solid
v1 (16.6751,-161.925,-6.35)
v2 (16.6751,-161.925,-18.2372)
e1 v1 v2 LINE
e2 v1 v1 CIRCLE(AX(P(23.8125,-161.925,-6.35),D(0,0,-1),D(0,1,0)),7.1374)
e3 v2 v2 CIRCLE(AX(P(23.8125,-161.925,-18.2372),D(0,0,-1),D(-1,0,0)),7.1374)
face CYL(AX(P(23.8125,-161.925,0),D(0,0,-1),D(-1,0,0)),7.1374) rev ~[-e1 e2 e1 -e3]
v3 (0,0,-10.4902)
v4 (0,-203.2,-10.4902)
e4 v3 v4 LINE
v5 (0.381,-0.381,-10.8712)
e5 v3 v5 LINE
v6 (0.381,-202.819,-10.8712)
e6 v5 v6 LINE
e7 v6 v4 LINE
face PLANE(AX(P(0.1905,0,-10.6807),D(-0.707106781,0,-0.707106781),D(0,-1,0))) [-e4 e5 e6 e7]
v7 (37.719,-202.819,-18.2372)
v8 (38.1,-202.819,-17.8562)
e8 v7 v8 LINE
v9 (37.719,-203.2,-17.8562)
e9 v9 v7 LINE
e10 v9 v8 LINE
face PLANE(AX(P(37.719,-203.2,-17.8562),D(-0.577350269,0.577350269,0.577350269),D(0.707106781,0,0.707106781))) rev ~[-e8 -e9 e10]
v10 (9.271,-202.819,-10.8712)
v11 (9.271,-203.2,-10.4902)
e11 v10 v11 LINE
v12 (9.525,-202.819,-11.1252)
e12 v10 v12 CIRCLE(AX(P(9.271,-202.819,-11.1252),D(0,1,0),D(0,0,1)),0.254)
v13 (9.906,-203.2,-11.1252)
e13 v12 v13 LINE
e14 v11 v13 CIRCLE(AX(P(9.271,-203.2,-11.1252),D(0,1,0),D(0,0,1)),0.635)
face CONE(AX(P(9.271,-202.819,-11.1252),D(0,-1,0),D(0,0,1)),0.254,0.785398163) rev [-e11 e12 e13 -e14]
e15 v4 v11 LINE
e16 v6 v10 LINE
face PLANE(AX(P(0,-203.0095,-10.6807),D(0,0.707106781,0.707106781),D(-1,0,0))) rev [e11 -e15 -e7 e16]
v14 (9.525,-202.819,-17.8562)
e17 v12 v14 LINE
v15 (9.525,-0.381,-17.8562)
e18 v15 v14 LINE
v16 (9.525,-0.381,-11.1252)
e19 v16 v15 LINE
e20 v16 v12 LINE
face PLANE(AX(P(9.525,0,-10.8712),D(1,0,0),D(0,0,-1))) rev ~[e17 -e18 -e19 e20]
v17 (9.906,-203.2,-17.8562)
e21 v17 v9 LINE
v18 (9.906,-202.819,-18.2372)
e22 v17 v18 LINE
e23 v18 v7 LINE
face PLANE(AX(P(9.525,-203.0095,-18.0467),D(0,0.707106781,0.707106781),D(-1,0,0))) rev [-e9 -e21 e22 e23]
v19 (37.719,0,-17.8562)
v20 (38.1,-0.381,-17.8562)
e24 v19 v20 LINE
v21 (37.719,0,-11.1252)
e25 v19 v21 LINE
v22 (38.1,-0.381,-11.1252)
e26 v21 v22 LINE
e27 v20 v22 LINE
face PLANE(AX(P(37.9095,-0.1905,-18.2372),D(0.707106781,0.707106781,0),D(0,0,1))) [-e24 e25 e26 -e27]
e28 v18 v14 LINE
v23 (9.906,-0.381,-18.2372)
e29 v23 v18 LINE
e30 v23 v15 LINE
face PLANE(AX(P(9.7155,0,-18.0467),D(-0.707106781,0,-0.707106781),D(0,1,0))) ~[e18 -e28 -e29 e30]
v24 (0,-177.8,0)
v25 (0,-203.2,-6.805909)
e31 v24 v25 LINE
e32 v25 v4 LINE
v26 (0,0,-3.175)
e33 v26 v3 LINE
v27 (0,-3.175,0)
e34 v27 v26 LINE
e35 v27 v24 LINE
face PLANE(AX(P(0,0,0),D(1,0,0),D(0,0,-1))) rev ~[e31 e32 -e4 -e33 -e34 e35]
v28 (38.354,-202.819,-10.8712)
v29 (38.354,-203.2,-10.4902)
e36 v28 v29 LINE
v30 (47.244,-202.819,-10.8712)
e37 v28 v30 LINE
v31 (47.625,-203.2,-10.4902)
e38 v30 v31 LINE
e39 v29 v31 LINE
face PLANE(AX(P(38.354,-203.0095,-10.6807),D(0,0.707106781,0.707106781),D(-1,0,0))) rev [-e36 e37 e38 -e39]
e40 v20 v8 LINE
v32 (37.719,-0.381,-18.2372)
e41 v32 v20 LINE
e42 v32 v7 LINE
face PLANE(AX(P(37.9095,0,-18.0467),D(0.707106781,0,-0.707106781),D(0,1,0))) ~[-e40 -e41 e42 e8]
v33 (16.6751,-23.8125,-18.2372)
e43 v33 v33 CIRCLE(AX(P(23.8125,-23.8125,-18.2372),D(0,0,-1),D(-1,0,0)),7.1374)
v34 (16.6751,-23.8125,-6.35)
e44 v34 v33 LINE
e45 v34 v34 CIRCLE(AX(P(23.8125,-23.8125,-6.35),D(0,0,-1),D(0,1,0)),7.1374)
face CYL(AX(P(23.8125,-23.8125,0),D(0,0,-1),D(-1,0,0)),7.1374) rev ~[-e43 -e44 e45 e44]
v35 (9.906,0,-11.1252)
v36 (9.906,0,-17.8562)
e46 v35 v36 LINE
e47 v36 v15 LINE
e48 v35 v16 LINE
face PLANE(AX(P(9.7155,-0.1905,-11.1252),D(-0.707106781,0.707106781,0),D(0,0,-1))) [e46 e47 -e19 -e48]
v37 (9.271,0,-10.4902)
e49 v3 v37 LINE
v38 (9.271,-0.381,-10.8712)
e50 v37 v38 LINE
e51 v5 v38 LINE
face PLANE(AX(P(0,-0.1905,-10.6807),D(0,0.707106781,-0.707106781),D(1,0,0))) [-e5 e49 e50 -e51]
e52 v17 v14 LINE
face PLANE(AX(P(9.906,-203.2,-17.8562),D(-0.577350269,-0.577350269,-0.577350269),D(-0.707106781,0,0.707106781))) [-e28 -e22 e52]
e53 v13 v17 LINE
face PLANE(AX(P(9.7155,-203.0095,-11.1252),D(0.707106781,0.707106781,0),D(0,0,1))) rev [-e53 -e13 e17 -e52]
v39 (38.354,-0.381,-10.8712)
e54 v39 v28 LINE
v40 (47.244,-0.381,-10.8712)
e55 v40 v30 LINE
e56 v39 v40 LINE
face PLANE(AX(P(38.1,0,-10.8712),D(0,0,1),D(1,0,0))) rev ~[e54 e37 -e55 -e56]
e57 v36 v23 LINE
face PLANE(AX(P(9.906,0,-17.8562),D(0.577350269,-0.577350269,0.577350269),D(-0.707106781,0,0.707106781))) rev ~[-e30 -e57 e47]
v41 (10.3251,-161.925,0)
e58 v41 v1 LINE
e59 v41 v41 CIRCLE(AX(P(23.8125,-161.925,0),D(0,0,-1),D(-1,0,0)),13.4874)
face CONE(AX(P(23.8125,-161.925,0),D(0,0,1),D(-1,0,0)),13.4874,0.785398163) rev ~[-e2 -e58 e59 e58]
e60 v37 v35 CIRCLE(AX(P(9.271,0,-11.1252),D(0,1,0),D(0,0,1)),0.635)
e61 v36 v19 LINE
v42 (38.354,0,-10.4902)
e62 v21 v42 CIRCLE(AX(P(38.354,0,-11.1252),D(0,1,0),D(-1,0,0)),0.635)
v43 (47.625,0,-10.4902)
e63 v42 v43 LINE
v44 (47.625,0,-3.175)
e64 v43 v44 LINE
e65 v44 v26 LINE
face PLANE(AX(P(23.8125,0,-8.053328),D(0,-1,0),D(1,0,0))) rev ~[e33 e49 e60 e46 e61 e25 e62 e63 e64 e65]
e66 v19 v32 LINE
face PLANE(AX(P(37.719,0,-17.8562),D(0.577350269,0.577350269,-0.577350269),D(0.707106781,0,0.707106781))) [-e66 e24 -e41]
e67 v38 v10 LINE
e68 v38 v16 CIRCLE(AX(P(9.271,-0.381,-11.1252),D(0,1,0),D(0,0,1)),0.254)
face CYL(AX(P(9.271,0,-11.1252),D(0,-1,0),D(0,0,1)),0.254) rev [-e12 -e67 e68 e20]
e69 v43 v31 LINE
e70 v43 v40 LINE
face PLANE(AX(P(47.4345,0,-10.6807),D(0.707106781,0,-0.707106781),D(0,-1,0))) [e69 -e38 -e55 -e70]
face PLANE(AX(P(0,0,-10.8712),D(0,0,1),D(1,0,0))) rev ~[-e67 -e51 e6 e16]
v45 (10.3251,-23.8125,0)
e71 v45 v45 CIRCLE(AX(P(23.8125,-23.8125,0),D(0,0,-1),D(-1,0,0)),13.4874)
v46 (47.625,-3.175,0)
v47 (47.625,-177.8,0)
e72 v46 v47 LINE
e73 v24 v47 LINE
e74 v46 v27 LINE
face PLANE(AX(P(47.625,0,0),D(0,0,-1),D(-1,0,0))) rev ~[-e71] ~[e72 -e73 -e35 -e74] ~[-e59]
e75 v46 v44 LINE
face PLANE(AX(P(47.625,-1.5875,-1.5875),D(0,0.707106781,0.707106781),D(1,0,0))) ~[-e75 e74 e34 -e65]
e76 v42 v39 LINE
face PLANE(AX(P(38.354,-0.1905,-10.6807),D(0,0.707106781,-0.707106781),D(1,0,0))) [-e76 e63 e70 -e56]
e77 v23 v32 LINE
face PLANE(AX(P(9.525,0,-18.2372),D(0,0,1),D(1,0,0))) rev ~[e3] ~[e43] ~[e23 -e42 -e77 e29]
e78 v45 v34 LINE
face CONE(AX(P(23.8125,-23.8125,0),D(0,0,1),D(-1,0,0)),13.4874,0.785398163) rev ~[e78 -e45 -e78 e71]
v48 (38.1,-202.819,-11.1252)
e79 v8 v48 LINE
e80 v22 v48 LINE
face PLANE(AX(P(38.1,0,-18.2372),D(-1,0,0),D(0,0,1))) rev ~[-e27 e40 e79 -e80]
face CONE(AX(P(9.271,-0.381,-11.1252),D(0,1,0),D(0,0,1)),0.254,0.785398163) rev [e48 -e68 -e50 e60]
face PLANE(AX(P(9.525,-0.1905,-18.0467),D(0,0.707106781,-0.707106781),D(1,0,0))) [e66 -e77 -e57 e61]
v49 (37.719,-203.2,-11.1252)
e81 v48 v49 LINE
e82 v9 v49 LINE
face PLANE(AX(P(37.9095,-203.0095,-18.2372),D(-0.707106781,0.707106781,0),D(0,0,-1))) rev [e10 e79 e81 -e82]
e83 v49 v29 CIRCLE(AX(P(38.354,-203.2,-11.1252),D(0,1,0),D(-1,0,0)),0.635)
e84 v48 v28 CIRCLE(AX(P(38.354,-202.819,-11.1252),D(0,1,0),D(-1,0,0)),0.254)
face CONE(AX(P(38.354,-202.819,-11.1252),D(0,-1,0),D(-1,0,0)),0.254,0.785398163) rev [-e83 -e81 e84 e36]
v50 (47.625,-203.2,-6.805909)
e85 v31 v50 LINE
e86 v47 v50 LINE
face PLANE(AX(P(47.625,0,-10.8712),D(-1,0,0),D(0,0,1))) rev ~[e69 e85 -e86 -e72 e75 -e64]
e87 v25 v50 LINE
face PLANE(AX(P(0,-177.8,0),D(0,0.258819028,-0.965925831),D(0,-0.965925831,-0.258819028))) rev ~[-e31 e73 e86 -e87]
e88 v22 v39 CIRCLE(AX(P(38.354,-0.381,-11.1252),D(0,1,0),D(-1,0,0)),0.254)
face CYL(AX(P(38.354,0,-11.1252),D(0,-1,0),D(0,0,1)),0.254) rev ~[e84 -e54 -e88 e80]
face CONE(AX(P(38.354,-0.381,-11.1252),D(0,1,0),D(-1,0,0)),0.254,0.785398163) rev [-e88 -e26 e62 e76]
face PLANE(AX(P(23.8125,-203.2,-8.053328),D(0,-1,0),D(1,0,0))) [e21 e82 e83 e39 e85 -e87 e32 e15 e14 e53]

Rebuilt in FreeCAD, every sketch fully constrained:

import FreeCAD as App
import Part
import Sketcher
from FreeCAD import Vector
Q = App.Units.Quantity


def edges_at(feature, points):
    """Names of the edges that pass closest to the given points."""
    edges = feature.Shape.Edges
    near = lambda p: min(range(len(edges)), key=lambda i: edges[i].distToShape(Part.Vertex(*p))[0])
    return sorted({f"Edge{near(p) + 1}" for p in points})

doc = App.newDocument("Part")
body = doc.addObject("PartDesign::Body", "Body")

# Sketch on XZ plane
sketch1 = body.newObject("Sketcher::SketchObject", "Sketch")
sketch1.AttachmentSupport = (doc.getObject("XZ_Plane"), [""])
sketch1.MapMode = "FlatFace"
sketch1.addGeometry(Part.LineSegment(Vector(47.625, 0, 0), Vector(0, 0, 0)), False)
sketch1.addGeometry(Part.LineSegment(Vector(0, 0, 0), Vector(0, -10.8712, 0)), False)
sketch1.addGeometry(Part.LineSegment(Vector(0, -10.8712, 0), Vector(9.525, -10.8712, 0)), False)
sketch1.addGeometry(Part.LineSegment(Vector(9.525, -10.8712, 0), Vector(9.525, -18.2372, 0)), False)
sketch1.addGeometry(Part.LineSegment(Vector(9.525, -18.2372, 0), Vector(38.1, -18.2372, 0)), False)
sketch1.addGeometry(Part.LineSegment(Vector(38.1, -18.2372, 0), Vector(38.1, -10.8712, 0)), False)
sketch1.addGeometry(Part.LineSegment(Vector(38.1, -10.8712, 0), Vector(47.625, -10.8712, 0)), False)
sketch1.addGeometry(Part.LineSegment(Vector(47.625, -10.8712, 0), Vector(47.625, 0, 0)), False)
sketch1.addConstraint(Sketcher.Constraint("Coincident", 0, 2, 1, 1))
sketch1.addConstraint(Sketcher.Constraint("Coincident", 1, 2, 2, 1))
sketch1.addConstraint(Sketcher.Constraint("Coincident", 2, 2, 3, 1))
sketch1.addConstraint(Sketcher.Constraint("Coincident", 3, 2, 4, 1))
sketch1.addConstraint(Sketcher.Constraint("Coincident", 4, 2, 5, 1))
sketch1.addConstraint(Sketcher.Constraint("Coincident", 5, 2, 6, 1))
sketch1.addConstraint(Sketcher.Constraint("Coincident", 6, 2, 7, 1))
sketch1.addConstraint(Sketcher.Constraint("Coincident", 7, 2, 0, 1))
sketch1.addConstraint(Sketcher.Constraint("Horizontal", 0))
sketch1.addConstraint(Sketcher.Constraint("Vertical", 1))
sketch1.addConstraint(Sketcher.Constraint("Horizontal", 2))
sketch1.addConstraint(Sketcher.Constraint("Vertical", 3))
sketch1.addConstraint(Sketcher.Constraint("Horizontal", 4))
sketch1.addConstraint(Sketcher.Constraint("Vertical", 5))
sketch1.addConstraint(Sketcher.Constraint("Horizontal", 6))
sketch1.addConstraint(Sketcher.Constraint("Vertical", 7))
sketch1.addConstraint(Sketcher.Constraint("Coincident", 0, 2, -1, 1))
sketch1.addConstraint(Sketcher.Constraint("Horizontal", 2, 2, 5, 2))
sketch1.addConstraint(Sketcher.Constraint("Equal", 2, 6))
sketch1.addConstraint(Sketcher.Constraint("DistanceY", 3, 2, 3, 1, Q("0.29 in")))
sketch1.addConstraint(Sketcher.Constraint("DistanceX", -1, 1, 4, 2, Q("1.5 in")))
sketch1.addConstraint(Sketcher.Constraint("DistanceX", 0, 2, 0, 1, Q("1.875 in")))
sketch1.addConstraint(Sketcher.Constraint("DistanceY", 1, 2, 1, 1, Q("0.428 in")))
pad1 = body.newObject("PartDesign::Pad", "Pad")
pad1.Profile = sketch1
pad1.Length = Q("8 in")

# Sketch on YZ plane
sketch2 = body.newObject("Sketcher::SketchObject", "Sketch001")
sketch2.AttachmentSupport = (doc.getObject("YZ_Plane"), [""])
sketch2.MapMode = "FlatFace"
sketch2.addGeometry(Part.LineSegment(Vector(-203.2, -6.805909, 0), Vector(-203.2, 0, 0)), False)
sketch2.addGeometry(Part.LineSegment(Vector(-203.2, 0, 0), Vector(-177.8, 0, 0)), False)
sketch2.addGeometry(Part.LineSegment(Vector(-177.8, 0, 0), Vector(-203.2, -6.805909, 0)), False)
sketch2.addConstraint(Sketcher.Constraint("Coincident", 0, 2, 1, 1))
sketch2.addConstraint(Sketcher.Constraint("Coincident", 1, 2, 2, 1))
sketch2.addConstraint(Sketcher.Constraint("Coincident", 2, 2, 0, 1))
sketch2.addConstraint(Sketcher.Constraint("Vertical", 0))
sketch2.addConstraint(Sketcher.Constraint("Horizontal", 1))
sketch2.addConstraint(Sketcher.Constraint("PointOnObject", 0, 2, -1))
sketch2.addConstraint(Sketcher.Constraint("DistanceX", 1, 1, 1, 2, Q("1 in")))
sketch2.addConstraint(Sketcher.Constraint("DistanceX", 0, 2, -1, 1, Q("8 in")))
sketch2.addConstraint(Sketcher.Constraint("Angle", 2, Q("-165.000001 deg")))
pocket1 = body.newObject("PartDesign::Pocket", "Pocket")
pocket1.Profile = sketch2
pocket1.Type = "ThroughAll"
pocket1.Reversed = True

# Sketch on XY plane
sketch3 = body.newObject("Sketcher::SketchObject", "Sketch002")
sketch3.AttachmentSupport = (doc.getObject("XY_Plane"), [""])
sketch3.MapMode = "FlatFace"
sketch3.addGeometry(Part.Circle(Vector(23.8125, -23.8125, 0), Vector(0, 0, 1), 7.1374), False)
sketch3.addGeometry(Part.Circle(Vector(23.8125, -161.925, 0), Vector(0, 0, 1), 7.1374), False)
sketch3.addConstraint(Sketcher.Constraint("Equal", 0, 1))
sketch3.addConstraint(Sketcher.Constraint("Vertical", 0, 3, 1, 3))
sketch3.addConstraint(Sketcher.Constraint("Diameter", 0, Q("0.562 in")))
sketch3.addConstraint(Sketcher.Constraint("DistanceX", -1, 1, 0, 3, Q("0.9375 in")))
sketch3.addConstraint(Sketcher.Constraint("DistanceY", 0, 3, -1, 1, Q("0.9375 in")))
sketch3.addConstraint(Sketcher.Constraint("DistanceY", 1, 3, -1, 1, Q("6.375 in")))
doc.recompute()
hole = body.newObject("PartDesign::Hole", "Hole")
hole.Profile = sketch3
hole.ThreadType = "None"
hole.Diameter = Q("0.562 in")
hole.DepthType = "ThroughAll"
hole.HoleCutType = "Countersink"
hole.HoleCutDiameter = Q("1.062 in")
hole.HoleCutCountersinkAngle = 90
doc.recompute()

chamfer = body.newObject("PartDesign::Chamfer", "Chamfer")
chamfer.Base = (hole, edges_at(hole, [(23.812, 0, 0)]))
chamfer.Size = Q("0.125 in")
doc.recompute()

fillet = body.newObject("PartDesign::Fillet", "Fillet")
fillet.Base = (chamfer, edges_at(chamfer, [(9.525, -101.6, -10.871), (38.1, -101.6, -10.871)]))
fillet.Radius = Q("0.01 in")
doc.recompute()

chamfer2 = body.newObject("PartDesign::Chamfer", "Chamfer001")
chamfer2.Base = (fillet, edges_at(fillet, [
    (38.1, -101.6, -18.237),
    (9.525, -101.6, -18.237),
    (23.812, -203.2, -18.237),
    (23.812, 0, -18.237),
    (38.1, 0, -14.681),
    (9.525, 0, -14.681),
    (9.525, -203.2, -14.681),
    (38.1, -203.2, -14.681),
    (47.625, -101.6, -10.871),
    (0, -101.6, -10.871),
]))
chamfer2.Size = Q("0.015 in")

doc.recompute()
